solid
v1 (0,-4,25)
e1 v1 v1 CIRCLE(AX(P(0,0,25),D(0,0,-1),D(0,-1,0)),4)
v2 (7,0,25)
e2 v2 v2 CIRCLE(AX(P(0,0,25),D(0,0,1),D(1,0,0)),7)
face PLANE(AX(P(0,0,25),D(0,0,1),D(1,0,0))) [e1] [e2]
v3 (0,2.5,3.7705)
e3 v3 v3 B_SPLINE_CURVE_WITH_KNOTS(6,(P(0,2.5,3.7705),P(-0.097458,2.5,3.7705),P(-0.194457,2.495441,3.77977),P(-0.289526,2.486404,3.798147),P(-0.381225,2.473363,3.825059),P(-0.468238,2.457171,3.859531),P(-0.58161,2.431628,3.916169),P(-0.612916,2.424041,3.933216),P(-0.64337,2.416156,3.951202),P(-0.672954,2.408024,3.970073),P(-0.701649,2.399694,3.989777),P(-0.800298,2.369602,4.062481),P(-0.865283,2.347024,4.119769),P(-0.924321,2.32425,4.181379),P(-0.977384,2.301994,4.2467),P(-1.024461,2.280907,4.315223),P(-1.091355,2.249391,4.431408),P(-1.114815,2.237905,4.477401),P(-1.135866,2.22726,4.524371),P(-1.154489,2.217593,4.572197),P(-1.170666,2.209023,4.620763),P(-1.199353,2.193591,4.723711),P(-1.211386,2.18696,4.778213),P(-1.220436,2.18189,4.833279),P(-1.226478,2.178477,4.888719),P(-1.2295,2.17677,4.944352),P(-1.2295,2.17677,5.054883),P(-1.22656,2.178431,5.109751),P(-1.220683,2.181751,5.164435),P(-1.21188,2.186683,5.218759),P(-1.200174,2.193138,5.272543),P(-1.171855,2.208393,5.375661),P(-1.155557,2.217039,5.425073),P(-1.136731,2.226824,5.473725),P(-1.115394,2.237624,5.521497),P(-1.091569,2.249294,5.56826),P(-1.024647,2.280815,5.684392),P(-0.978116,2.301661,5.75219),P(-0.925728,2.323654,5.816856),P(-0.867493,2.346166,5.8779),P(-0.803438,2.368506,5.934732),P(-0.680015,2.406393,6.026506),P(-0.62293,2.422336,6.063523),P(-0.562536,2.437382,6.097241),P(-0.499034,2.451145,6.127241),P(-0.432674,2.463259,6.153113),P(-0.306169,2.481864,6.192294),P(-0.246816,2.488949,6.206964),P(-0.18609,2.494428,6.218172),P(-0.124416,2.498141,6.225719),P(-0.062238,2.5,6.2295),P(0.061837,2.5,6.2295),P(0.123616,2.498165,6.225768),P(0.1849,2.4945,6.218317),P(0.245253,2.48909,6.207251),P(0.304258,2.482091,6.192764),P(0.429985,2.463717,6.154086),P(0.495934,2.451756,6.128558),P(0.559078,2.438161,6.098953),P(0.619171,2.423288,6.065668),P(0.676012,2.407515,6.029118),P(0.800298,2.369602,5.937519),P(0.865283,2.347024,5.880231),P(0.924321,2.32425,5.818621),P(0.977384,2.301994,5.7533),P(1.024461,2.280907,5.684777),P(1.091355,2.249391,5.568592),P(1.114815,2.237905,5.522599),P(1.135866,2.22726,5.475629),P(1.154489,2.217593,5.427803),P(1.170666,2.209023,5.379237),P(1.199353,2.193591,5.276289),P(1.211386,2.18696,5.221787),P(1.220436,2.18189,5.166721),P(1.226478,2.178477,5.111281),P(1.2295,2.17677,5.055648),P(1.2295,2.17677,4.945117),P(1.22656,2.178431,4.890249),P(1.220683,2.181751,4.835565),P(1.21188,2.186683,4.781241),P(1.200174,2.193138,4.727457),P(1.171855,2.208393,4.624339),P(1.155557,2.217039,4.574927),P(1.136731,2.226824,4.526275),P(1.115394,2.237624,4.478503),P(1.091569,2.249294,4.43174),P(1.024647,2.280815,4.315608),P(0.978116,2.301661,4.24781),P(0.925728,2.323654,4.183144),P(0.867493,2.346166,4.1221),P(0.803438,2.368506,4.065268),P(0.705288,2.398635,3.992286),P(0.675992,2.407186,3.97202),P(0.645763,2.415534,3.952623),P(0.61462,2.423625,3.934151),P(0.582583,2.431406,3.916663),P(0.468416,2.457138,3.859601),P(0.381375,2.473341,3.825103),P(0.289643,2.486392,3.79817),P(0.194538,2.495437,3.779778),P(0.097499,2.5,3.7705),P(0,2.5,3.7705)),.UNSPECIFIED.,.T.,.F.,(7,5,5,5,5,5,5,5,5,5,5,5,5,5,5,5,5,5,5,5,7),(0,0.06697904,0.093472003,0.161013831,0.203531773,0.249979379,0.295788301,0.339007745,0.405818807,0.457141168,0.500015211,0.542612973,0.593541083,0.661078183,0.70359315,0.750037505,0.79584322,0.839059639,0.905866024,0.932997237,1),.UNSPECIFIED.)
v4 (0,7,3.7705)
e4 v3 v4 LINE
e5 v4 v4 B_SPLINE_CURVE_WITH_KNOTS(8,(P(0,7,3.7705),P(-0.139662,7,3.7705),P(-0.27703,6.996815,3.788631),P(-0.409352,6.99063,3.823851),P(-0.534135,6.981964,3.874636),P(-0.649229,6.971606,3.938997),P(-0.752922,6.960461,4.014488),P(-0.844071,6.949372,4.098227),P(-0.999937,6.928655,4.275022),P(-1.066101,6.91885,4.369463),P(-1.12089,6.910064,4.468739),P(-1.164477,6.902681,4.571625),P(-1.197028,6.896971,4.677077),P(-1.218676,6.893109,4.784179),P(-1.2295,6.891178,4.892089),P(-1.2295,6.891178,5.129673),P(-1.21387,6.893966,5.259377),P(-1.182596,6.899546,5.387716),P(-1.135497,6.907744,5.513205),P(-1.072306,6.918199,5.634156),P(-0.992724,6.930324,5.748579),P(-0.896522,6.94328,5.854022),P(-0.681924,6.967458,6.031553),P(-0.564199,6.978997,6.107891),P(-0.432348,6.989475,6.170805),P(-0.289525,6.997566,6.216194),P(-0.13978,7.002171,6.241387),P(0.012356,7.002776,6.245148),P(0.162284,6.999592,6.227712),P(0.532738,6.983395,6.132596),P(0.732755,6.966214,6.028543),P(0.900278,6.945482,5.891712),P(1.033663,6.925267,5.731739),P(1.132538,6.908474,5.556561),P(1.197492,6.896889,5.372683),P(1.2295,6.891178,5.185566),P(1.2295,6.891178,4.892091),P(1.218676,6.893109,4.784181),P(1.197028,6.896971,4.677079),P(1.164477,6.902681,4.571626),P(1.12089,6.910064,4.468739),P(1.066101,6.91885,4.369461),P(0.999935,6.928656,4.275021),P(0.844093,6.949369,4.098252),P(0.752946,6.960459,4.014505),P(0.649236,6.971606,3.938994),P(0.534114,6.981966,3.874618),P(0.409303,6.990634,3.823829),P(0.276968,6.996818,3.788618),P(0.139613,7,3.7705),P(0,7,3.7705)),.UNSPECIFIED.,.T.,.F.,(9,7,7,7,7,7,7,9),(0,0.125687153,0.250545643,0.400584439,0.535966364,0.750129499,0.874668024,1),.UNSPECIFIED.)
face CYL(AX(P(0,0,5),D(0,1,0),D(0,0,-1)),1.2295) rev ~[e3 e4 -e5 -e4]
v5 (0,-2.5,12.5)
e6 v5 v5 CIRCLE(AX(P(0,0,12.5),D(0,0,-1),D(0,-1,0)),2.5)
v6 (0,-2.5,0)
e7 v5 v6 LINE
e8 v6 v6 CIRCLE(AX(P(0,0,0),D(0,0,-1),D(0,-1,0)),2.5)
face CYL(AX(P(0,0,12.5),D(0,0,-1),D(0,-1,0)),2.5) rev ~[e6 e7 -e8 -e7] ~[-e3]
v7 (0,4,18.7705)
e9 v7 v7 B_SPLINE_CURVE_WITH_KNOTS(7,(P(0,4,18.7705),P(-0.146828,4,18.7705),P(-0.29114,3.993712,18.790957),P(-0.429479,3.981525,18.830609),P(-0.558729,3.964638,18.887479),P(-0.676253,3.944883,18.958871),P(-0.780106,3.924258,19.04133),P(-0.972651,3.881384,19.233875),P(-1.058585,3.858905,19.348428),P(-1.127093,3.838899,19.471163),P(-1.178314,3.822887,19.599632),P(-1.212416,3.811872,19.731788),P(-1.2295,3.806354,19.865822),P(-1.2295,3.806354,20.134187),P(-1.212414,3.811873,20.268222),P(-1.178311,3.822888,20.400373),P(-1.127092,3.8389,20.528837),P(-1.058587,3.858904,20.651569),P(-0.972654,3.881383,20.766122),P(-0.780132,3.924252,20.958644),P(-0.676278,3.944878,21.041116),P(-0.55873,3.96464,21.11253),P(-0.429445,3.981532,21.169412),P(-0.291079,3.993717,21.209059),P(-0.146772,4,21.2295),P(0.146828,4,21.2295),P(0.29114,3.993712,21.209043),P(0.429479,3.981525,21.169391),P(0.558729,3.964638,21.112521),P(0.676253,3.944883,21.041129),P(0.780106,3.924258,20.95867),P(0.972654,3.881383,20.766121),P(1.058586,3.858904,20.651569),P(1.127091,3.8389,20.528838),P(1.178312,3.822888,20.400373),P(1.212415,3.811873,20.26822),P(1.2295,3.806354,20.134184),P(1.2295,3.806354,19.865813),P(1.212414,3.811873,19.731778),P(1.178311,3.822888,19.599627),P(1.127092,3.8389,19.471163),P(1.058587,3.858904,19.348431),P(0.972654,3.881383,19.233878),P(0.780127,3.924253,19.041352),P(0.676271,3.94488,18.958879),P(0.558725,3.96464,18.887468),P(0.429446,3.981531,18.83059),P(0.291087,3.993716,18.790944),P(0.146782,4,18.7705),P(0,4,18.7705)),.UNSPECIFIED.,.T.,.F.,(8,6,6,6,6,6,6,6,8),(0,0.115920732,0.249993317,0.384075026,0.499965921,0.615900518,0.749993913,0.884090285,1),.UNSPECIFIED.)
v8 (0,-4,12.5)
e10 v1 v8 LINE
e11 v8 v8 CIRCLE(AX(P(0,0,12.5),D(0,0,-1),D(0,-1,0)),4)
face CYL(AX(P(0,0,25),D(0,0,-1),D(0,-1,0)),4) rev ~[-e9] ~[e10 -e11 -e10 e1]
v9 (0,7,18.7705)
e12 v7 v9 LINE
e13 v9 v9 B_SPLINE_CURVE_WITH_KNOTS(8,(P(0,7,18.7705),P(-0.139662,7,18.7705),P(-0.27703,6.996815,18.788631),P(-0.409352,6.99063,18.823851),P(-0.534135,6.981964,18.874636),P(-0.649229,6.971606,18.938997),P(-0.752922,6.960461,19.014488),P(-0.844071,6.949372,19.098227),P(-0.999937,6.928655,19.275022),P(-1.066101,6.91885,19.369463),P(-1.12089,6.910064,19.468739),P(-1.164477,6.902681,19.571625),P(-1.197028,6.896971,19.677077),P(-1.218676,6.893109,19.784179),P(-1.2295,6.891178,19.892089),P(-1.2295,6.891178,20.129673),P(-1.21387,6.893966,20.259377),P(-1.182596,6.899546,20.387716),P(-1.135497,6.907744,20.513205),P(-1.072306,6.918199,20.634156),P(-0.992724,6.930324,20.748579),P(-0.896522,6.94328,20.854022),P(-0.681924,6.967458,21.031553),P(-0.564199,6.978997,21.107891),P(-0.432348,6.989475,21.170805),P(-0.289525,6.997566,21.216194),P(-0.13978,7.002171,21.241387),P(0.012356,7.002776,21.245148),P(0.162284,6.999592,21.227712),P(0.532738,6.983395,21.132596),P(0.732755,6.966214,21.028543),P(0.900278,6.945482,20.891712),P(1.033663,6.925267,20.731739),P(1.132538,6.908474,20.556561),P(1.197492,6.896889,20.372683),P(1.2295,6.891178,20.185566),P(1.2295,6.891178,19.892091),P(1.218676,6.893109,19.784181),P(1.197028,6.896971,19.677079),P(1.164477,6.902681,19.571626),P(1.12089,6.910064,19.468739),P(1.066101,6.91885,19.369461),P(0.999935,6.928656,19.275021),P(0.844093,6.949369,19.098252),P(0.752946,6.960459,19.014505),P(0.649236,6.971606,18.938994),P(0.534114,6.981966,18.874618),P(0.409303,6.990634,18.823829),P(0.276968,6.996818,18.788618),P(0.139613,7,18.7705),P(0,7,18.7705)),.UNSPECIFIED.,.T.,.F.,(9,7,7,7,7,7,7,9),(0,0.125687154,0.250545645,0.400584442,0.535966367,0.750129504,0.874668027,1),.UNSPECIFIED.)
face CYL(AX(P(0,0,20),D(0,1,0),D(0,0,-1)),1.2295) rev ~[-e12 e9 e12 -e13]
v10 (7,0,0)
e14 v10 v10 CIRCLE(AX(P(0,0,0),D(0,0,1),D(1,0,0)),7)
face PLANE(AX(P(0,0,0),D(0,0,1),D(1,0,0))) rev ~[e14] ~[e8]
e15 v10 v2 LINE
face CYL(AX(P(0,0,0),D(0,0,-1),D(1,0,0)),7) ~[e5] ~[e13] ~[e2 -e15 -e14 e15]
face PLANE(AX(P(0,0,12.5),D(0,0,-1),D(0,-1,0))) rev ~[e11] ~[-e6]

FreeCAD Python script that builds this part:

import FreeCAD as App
import Part
import Sketcher
from FreeCAD import Vector

doc = App.newDocument("Part")
body = doc.addObject("PartDesign::Body", "Body")

sketch1 = body.newObject("Sketcher::SketchObject", "Sketch")
sketch1.AttachmentSupport = (doc.getObject("XY_Plane"), [""])
sketch1.MapMode = "FlatFace"
sketch1.addGeometry(Part.Circle(Vector(0, 0, 0), Vector(0, 0, 1), 7), False)
sketch1.addConstraint(Sketcher.Constraint("Coincident", 0, 3, -1, 1))
sketch1.addConstraint(Sketcher.Constraint("Diameter", 0, 14.0))
pad1 = body.newObject("PartDesign::Pad", "Pad")
pad1.Profile = sketch1
pad1.Length = 25

sketch2 = body.newObject("Sketcher::SketchObject", "Sketch001")
sketch2.AttachmentSupport = (doc.getObject("XY_Plane"), [""])
sketch2.MapMode = "FlatFace"
sketch2.AttachmentOffset = App.Placement(Vector(0, 0, 25), App.Rotation())
sketch2.addGeometry(Part.Circle(Vector(0, 0, 0), Vector(0, 0, 1), 2.5), False)
sketch2.addConstraint(Sketcher.Constraint("Coincident", 0, 3, -1, 1))
sketch2.addConstraint(Sketcher.Constraint("Diameter", 0, 5.0))
doc.recompute()
hole = body.newObject("PartDesign::Hole", "Hole")
hole.Profile = sketch2
hole.ThreadType = "None"
hole.Diameter = 5
hole.DepthType = "ThroughAll"
hole.HoleCutType = "Counterbore"
hole.HoleCutDiameter = 8
hole.HoleCutDepth = 12.5

sketch3 = body.newObject("Sketcher::SketchObject", "Sketch002")
sketch3.AttachmentSupport = (doc.getObject("XZ_Plane"), [""])
sketch3.MapMode = "FlatFace"
sketch3.addGeometry(Part.Circle(Vector(0, 20, 0), Vector(0, 0, 1), 1.2), False)
sketch3.addGeometry(Part.Circle(Vector(0, 5, 0), Vector(0, 0, 1), 1.2), False)
sketch3.addConstraint(Sketcher.Constraint("Equal", 0, 1))
sketch3.addConstraint(Sketcher.Constraint("PointOnObject", 0, 3, -2))
sketch3.addConstraint(Sketcher.Constraint("PointOnObject", 1, 3, -2))
sketch3.addConstraint(Sketcher.Constraint("Diameter", 0, 2.459))
sketch3.addConstraint(Sketcher.Constraint("DistanceY", -1, 1, 0, 3, 20.0))
sketch3.addConstraint(Sketcher.Constraint("DistanceY", -1, 1, 1, 3, 5.0))
doc.recompute()
hole2 = body.newObject("PartDesign::Hole", "Hole001")
hole2.Profile = sketch3
hole2.ThreadType = "None"
hole2.Diameter = 2.459
hole2.DepthType = "Dimension"
hole2.Depth = 8.8
hole2.DrillPoint = "Angled"
hole2.DrillPointAngle = 118

doc.recompute()
